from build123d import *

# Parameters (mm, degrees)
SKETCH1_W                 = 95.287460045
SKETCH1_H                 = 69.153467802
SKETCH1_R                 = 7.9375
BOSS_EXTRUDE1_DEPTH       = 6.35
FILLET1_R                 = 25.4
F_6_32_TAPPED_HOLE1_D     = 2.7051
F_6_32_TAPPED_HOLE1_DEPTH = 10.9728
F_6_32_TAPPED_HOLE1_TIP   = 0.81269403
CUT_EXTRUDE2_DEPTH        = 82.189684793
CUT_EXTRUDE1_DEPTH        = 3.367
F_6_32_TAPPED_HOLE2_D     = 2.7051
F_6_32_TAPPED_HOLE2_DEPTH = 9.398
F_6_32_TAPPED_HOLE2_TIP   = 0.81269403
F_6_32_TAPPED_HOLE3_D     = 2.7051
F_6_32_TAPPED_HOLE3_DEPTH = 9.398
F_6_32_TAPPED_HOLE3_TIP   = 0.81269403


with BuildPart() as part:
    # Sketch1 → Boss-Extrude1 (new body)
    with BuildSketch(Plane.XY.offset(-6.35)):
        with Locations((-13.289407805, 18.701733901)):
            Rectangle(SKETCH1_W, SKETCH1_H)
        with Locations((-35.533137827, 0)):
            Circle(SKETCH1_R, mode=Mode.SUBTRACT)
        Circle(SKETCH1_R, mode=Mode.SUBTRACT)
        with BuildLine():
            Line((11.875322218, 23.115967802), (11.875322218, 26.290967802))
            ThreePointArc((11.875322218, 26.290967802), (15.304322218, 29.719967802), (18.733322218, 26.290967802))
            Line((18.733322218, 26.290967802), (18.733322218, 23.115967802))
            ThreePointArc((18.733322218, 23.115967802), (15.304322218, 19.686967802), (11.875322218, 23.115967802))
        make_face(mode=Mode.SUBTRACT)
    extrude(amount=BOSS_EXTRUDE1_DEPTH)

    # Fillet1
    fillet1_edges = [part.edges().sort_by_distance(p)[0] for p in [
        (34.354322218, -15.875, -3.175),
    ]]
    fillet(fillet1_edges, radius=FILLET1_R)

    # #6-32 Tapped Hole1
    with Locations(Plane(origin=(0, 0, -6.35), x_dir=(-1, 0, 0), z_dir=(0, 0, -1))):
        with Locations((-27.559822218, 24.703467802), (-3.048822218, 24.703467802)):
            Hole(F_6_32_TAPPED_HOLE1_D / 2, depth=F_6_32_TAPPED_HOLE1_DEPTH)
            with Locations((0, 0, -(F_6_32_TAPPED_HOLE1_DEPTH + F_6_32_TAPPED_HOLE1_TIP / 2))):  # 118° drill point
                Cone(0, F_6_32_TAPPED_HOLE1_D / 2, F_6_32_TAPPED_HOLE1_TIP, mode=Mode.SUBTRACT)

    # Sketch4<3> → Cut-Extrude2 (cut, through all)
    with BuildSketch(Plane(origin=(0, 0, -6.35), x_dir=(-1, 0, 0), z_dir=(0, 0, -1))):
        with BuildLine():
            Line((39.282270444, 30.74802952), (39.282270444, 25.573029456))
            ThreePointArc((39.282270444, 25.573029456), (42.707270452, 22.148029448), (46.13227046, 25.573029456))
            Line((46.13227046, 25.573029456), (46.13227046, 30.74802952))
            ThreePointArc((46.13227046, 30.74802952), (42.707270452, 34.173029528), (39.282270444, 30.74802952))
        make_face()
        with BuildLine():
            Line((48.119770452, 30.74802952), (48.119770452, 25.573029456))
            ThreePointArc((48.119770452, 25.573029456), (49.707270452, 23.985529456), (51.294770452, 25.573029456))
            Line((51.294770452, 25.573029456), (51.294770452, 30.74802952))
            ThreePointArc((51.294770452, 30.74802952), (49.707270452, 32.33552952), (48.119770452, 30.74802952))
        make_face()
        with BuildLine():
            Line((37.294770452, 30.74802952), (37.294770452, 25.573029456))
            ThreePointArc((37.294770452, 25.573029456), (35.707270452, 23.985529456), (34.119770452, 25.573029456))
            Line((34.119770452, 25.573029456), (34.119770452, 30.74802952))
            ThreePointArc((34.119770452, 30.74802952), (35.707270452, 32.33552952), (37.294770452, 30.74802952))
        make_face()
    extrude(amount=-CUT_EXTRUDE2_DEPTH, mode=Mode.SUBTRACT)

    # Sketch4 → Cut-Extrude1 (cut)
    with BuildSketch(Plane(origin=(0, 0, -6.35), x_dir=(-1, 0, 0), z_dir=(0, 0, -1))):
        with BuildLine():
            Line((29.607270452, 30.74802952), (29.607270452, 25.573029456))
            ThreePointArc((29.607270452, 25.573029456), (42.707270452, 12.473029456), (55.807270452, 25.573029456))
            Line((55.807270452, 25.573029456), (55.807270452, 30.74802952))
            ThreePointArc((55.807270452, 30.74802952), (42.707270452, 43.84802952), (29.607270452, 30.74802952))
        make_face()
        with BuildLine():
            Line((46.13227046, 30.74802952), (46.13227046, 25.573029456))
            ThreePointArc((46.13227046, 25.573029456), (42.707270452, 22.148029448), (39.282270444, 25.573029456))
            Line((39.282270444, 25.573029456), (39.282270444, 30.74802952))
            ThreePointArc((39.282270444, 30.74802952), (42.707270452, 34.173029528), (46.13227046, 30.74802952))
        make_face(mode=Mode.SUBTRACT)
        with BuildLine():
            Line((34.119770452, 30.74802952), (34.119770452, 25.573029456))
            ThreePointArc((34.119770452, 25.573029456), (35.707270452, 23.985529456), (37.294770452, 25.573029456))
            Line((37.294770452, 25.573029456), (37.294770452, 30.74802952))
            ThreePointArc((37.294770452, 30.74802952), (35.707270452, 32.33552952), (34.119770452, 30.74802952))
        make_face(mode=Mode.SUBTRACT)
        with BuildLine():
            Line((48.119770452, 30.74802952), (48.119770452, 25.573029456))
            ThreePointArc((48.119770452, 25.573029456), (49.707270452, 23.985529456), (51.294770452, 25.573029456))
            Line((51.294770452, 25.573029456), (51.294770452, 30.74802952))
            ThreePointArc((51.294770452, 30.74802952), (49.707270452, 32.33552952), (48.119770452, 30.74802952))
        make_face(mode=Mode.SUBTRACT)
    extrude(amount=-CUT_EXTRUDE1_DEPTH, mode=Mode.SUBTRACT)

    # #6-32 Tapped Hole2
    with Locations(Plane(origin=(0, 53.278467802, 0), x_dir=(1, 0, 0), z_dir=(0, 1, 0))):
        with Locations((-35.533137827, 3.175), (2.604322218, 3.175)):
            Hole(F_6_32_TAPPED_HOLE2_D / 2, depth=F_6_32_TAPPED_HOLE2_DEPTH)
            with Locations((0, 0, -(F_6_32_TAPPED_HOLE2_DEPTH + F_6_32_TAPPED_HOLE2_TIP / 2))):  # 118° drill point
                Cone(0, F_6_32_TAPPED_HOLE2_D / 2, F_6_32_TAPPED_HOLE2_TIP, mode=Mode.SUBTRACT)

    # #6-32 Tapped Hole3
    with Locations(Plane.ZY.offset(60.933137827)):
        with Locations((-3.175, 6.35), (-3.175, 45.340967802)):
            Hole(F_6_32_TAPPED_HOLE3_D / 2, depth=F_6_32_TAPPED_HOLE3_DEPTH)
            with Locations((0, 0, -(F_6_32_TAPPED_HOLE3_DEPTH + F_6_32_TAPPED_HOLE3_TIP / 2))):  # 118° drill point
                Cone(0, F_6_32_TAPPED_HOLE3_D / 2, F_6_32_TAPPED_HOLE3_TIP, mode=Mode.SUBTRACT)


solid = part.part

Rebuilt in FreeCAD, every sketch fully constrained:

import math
import FreeCAD as App
import Part
import Sketcher

V = App.Vector
Q = App.Units.Quantity


def edges_at(feature, points):
    """Names of the edges that pass closest to the given points."""
    edges = feature.Shape.Edges
    near = lambda p: min(range(len(edges)), key=lambda i: edges[i].distToShape(Part.Vertex(*p))[0])
    return sorted({f"Edge{near(p) + 1}" for p in points})


def add_polygon(sketch, points):
    """Adds a closed chain of lines whose ends are joined by coincident constraints."""
    first, n = sketch.GeometryCount, len(points)
    for a, b in zip(points, points[1:] + points[:1]):
        sketch.addGeometry(Part.LineSegment(App.Vector(*a, 0), App.Vector(*b, 0)), False)
    for i in range(n):
        sketch.addConstraint(Sketcher.Constraint("Coincident", first + i, 2, first + (i + 1) % n, 1))

doc = App.newDocument("Part")
params = doc.addObject("Spreadsheet::Sheet", "Params")
for row, (alias, value) in enumerate([
    ("sketch1_diameter", "0.625 in"),
    ("sketch1_radius", "0.135 in"),
    ("sketch1_height", "0.125 in"),
    ("pad1_length", "0.25 in"),
    ("fillet_radius", "1 in"),
    ("hole_diameter", "0.1065 in"),
    ("hole_depth", "0.432 in"),
    ("sketch3_radius", "0.0625 in"),
    ("sketch4_radius", "0.0625 in"),
    ("pocket2_length", "3.367 mm"),
    ("hole2_diameter", "0.1065 in"),
    ("hole2_depth", "0.37 in"),
    ("hole3_diameter", "0.1065 in"),
    ("hole3_depth", "0.37 in"),
], start=1):
    params.set(f"A{row}", alias)
    params.set(f"B{row}", "=" + value)
    params.setAlias(f"B{row}", alias)

body = doc.addObject("PartDesign::Body", "Body")

sketch1 = doc.addObject("Sketcher::SketchObject", "Sketch")
body.addObject(sketch1)
sketch1.AttachmentSupport = (doc.XY_Plane, [""])
sketch1.MapMode = "FlatFace"
sketch1.AttachmentOffset = App.Placement(V(0, 0, -0.25 * 25.4), App.Rotation())
add_polygon(sketch1, [(-60.9, 53.3), (-60.9, -15.9), (34.4, -15.9), (34.4, 53.3)])
sketch1.addGeometry(Part.Circle(V(-35.5, 0, 0), V(0, 0, 1), 7.9), False)
sketch1.addGeometry(Part.Circle(V(0, 0, 0), V(0, 0, 1), 7.9), False)
sketch1.addGeometry(Part.ArcOfCircle(Part.Circle(V(15.3, 23.1, 0), V(0, 0, 1), 3.4), math.radians(180), math.radians(360)), False)
sketch1.addGeometry(Part.LineSegment(V(11.9, 23.1, 0), V(11.9, 26.3, 0)), False)
sketch1.addGeometry(Part.ArcOfCircle(Part.Circle(V(15.3, 26.3, 0), V(0, 0, 1), 3.4), math.radians(0), math.radians(180)), False)
sketch1.addGeometry(Part.LineSegment(V(18.7, 26.3, 0), V(18.7, 23.1, 0)), False)
sketch1.addConstraint([
    Sketcher.Constraint("Tangent", 6, 1, 7, 1),
    Sketcher.Constraint("Tangent", 7, 2, 8, 2),
    Sketcher.Constraint("Tangent", 8, 1, 9, 1),
    Sketcher.Constraint("Tangent", 9, 2, 6, 2),
    Sketcher.Constraint("Vertical", 0),
    Sketcher.Constraint("Horizontal", 1),
    Sketcher.Constraint("Vertical", 2),
    Sketcher.Constraint("Horizontal", 3),
    Sketcher.Constraint("Vertical", 7),
    Sketcher.Constraint("Vertical", 9),
    Sketcher.Constraint("Coincident", 5, 3, -1, 1),
    Sketcher.Constraint("Equal", 4, 5),
    Sketcher.Constraint("PointOnObject", 4, 3, -1),
    Sketcher.Constraint("Diameter", 4, Q("0.625 in")),
    Sketcher.Constraint("Radius", 6, Q("0.135 in")),
    Sketcher.Constraint("DistanceX", 0, 2, 4, 3, Q("1 in")),
    Sketcher.Constraint("DistanceY", 7, 1, 7, 2, Q("0.125 in")),
    Sketcher.Constraint("DistanceX", 6, 3, 1, 2, Q("0.75 in")),
    Sketcher.Constraint("DistanceY", 0, 2, -1, 1, Q("0.625 in")),
    Sketcher.Constraint("DistanceY", 8, 3, 2, 2, Q("1.0625 in")),
    Sketcher.Constraint("DistanceX", 1, 1, 1, 2, 95.28746),
    Sketcher.Constraint("DistanceY", 0, 2, 0, 1, 69.153468),
    Sketcher.Constraint("DistanceX", 4, 3, -1, 1, 35.533138),
])
sketch1.setExpression("Constraints[17]", "Params.sketch1_diameter")
sketch1.setExpression("Constraints[18]", "Params.sketch1_radius")
sketch1.setExpression("Constraints[20]", "Params.sketch1_height")
pad1 = doc.addObject("PartDesign::Pad", "Pad")
body.addObject(pad1)
pad1.Profile = sketch1
pad1.setExpression("Length", "Params.pad1_length")
doc.recompute()

fillet = doc.addObject("PartDesign::Fillet", "Fillet")
body.addObject(fillet)
fillet.Base = (pad1, edges_at(pad1, [(34.354, -15.875, -3.175)]))
fillet.setExpression("Radius", "Params.fillet_radius")

sketch2 = doc.addObject("Sketcher::SketchObject", "Sketch001")
body.addObject(sketch2)
sketch2.AttachmentSupport = (doc.XY_Plane, [""])
sketch2.MapMode = "FlatFace"
sketch2.AttachmentOffset = App.Placement(V(0, 0, -0.25 * 25.4), App.Rotation())
sketch2.addGeometry([
    Part.Circle(V(27.6, 24.7, 0), V(0, 0, 1), 1.4),
    Part.Circle(V(3, 24.7, 0), V(0, 0, 1), 1.4),
], False)
sketch2.addConstraint([
    Sketcher.Constraint("Equal", 0, 1),
    Sketcher.Constraint("Horizontal", 0, 3, 1, 3),
    Sketcher.Constraint("Diameter", 0, Q("0.1065 in")),
    Sketcher.Constraint("DistanceX", 1, 3, 0, 3, Q("0.965 in")),
    Sketcher.Constraint("DistanceX", -1, 1, 0, 3, 27.559822),
    Sketcher.Constraint("DistanceY", -1, 1, 0, 3, 24.703468),
])
doc.recompute()
hole = doc.addObject("PartDesign::Hole", "Hole")
body.addObject(hole)
hole.Profile = sketch2
hole.ThreadType = "None"
hole.setExpression("Diameter", "Params.hole_diameter")
hole.DepthType = "Dimension"
hole.setExpression("Depth", "Params.hole_depth")
hole.DrillPoint = "Angled"
hole.DrillPointAngle = 118
hole.Reversed = True

sketch3 = doc.addObject("Sketcher::SketchObject", "Sketch002")
body.addObject(sketch3)
sketch3.AttachmentSupport = (doc.XY_Plane, [""])
sketch3.MapMode = "FlatFace"
sketch3.AttachmentOffset = App.Placement(V(0, 0, -0.25 * 25.4), App.Rotation())
sketch3.addGeometry([
    Part.LineSegment(V(-39.3, 30.7, 0), V(-39.3, 25.6, 0)),
    Part.ArcOfCircle(Part.Circle(V(-42.7, 25.6, 0), V(0, 0, 1), 3.4), math.radians(180), math.radians(360)),
    Part.LineSegment(V(-46.1, 25.6, 0), V(-46.1, 30.7, 0)),
    Part.ArcOfCircle(Part.Circle(V(-42.7, 30.7, 0), V(0, 0, 1), 3.4), math.radians(0), math.radians(180)),
    Part.LineSegment(V(-48.1, 30.7, 0), V(-48.1, 25.6, 0)),
    Part.ArcOfCircle(Part.Circle(V(-49.7, 25.6, 0), V(0, 0, 1), 1.6), math.radians(180), math.radians(360)),
    Part.LineSegment(V(-51.3, 25.6, 0), V(-51.3, 30.7, 0)),
    Part.ArcOfCircle(Part.Circle(V(-49.7, 30.7, 0), V(0, 0, 1), 1.6), math.radians(0), math.radians(180)),
    Part.LineSegment(V(-37.3, 25.6, 0), V(-37.3, 30.7, 0)),
    Part.ArcOfCircle(Part.Circle(V(-35.7, 30.7, 0), V(0, 0, 1), 1.6), math.radians(0), math.radians(180)),
    Part.LineSegment(V(-34.1, 30.7, 0), V(-34.1, 25.6, 0)),
    Part.ArcOfCircle(Part.Circle(V(-35.7, 25.6, 0), V(0, 0, 1), 1.6), math.radians(180), math.radians(360)),
], False)
sketch3.addConstraint([
    Sketcher.Constraint("Tangent", 0, 2, 1, 2),
    Sketcher.Constraint("Tangent", 1, 1, 2, 1),
    Sketcher.Constraint("Tangent", 2, 2, 3, 2),
    Sketcher.Constraint("Tangent", 3, 1, 0, 1),
    Sketcher.Constraint("Tangent", 4, 2, 5, 2),
    Sketcher.Constraint("Tangent", 5, 1, 6, 1),
    Sketcher.Constraint("Tangent", 6, 2, 7, 2),
    Sketcher.Constraint("Tangent", 7, 1, 4, 1),
    Sketcher.Constraint("Tangent", 8, 2, 9, 2),
    Sketcher.Constraint("Tangent", 9, 1, 10, 1),
    Sketcher.Constraint("Tangent", 10, 2, 11, 2),
    Sketcher.Constraint("Tangent", 11, 1, 8, 1),
    Sketcher.Constraint("Vertical", 0),
    Sketcher.Constraint("Vertical", 2),
    Sketcher.Constraint("Vertical", 4),
    Sketcher.Constraint("Vertical", 6),
    Sketcher.Constraint("Vertical", 8),
    Sketcher.Constraint("Vertical", 10),
    Sketcher.Constraint("Equal", 7, 9),
    Sketcher.Constraint("Horizontal", 1, 3, 5, 3),
    Sketcher.Constraint("Horizontal", 3, 3, 7, 3),
    Sketcher.Constraint("Horizontal", 7, 3, 9, 3),
    Sketcher.Constraint("Horizontal", 5, 3, 11, 3),
    Sketcher.Constraint("Radius", 5, Q("0.0625 in")),
    Sketcher.Constraint("Radius", 1, 3.425),
    Sketcher.Constraint("DistanceY", 0, 2, 0, 1, 5.175),
    Sketcher.Constraint("DistanceX", 5, 3, 1, 3, 7.0),
    Sketcher.Constraint("DistanceX", 3, 3, 9, 3, 7.0),
    Sketcher.Constraint("DistanceX", 1, 3, -1, 1, 42.70727),
    Sketcher.Constraint("DistanceY", -1, 1, 1, 3, 25.573029),
])
sketch3.setExpression("Constraints[23]", "Params.sketch3_radius")
pocket1 = doc.addObject("PartDesign::Pocket", "Pocket")
body.addObject(pocket1)
pocket1.Profile = sketch3
pocket1.Type = "ThroughAll"
pocket1.Reversed = True

sketch4 = doc.addObject("Sketcher::SketchObject", "Sketch003")
body.addObject(sketch4)
sketch4.AttachmentSupport = (doc.XY_Plane, [""])
sketch4.MapMode = "FlatFace"
sketch4.AttachmentOffset = App.Placement(V(0, 0, -0.25 * 25.4), App.Rotation())
sketch4.addGeometry([
    Part.LineSegment(V(-29.6, 30.7, 0), V(-29.6, 25.6, 0)),
    Part.ArcOfCircle(Part.Circle(V(-42.7, 25.6, 0), V(0, 0, 1), 13.1), math.radians(180), math.radians(360)),
    Part.LineSegment(V(-55.8, 25.6, 0), V(-55.8, 30.7, 0)),
    Part.ArcOfCircle(Part.Circle(V(-42.7, 30.7, 0), V(0, 0, 1), 13.1), math.radians(0), math.radians(180)),
    Part.LineSegment(V(-34.1, 25.6, 0), V(-34.1, 30.7, 0)),
    Part.ArcOfCircle(Part.Circle(V(-35.7, 30.7, 0), V(0, 0, 1), 1.6), math.radians(0), math.radians(180)),
    Part.LineSegment(V(-37.3, 30.7, 0), V(-37.3, 25.6, 0)),
    Part.ArcOfCircle(Part.Circle(V(-35.7, 25.6, 0), V(0, 0, 1), 1.6), math.radians(180), math.radians(360)),
    Part.LineSegment(V(-48.1, 25.6, 0), V(-48.1, 30.7, 0)),
    Part.ArcOfCircle(Part.Circle(V(-49.7, 30.7, 0), V(0, 0, 1), 1.6), math.radians(0), math.radians(180)),
    Part.LineSegment(V(-51.3, 30.7, 0), V(-51.3, 25.6, 0)),
    Part.ArcOfCircle(Part.Circle(V(-49.7, 25.6, 0), V(0, 0, 1), 1.6), math.radians(180), math.radians(360)),
    Part.ArcOfCircle(Part.Circle(V(-42.7, 30.7, 0), V(0, 0, 1), 3.4), math.radians(0), math.radians(180)),
    Part.LineSegment(V(-46.1, 30.7, 0), V(-46.1, 25.6, 0)),
    Part.ArcOfCircle(Part.Circle(V(-42.7, 25.6, 0), V(0, 0, 1), 3.4), math.radians(180), math.radians(360)),
    Part.LineSegment(V(-39.3, 25.6, 0), V(-39.3, 30.7, 0)),
], False)
sketch4.addConstraint([
    Sketcher.Constraint("Tangent", 0, 2, 1, 2),
    Sketcher.Constraint("Tangent", 1, 1, 2, 1),
    Sketcher.Constraint("Tangent", 2, 2, 3, 2),
    Sketcher.Constraint("Tangent", 3, 1, 0, 1),
    Sketcher.Constraint("Tangent", 4, 2, 5, 1),
    Sketcher.Constraint("Tangent", 5, 2, 6, 1),
    Sketcher.Constraint("Tangent", 6, 2, 7, 1),
    Sketcher.Constraint("Tangent", 7, 2, 4, 1),
    Sketcher.Constraint("Tangent", 8, 2, 9, 1),
    Sketcher.Constraint("Tangent", 9, 2, 10, 1),
    Sketcher.Constraint("Tangent", 10, 2, 11, 1),
    Sketcher.Constraint("Tangent", 11, 2, 8, 1),
    Sketcher.Constraint("Tangent", 12, 2, 13, 1),
    Sketcher.Constraint("Tangent", 13, 2, 14, 1),
    Sketcher.Constraint("Tangent", 14, 2, 15, 1),
    Sketcher.Constraint("Tangent", 15, 2, 12, 1),
    Sketcher.Constraint("Vertical", 0),
    Sketcher.Constraint("Vertical", 2),
    Sketcher.Constraint("Vertical", 4),
    Sketcher.Constraint("Vertical", 6),
    Sketcher.Constraint("Vertical", 8),
    Sketcher.Constraint("Vertical", 10),
    Sketcher.Constraint("Vertical", 13),
    Sketcher.Constraint("Vertical", 15),
    Sketcher.Constraint("Coincident", 12, 3, 3, 3),
    Sketcher.Constraint("Equal", 7, 9),
    Sketcher.Constraint("Horizontal", 3, 3, 5, 3),
    Sketcher.Constraint("Horizontal", 1, 3, 7, 3),
    Sketcher.Constraint("Horizontal", 5, 3, 9, 3),
    Sketcher.Constraint("Horizontal", 7, 3, 11, 3),
    Sketcher.Constraint("Horizontal", 11, 3, 14, 3),
    Sketcher.Constraint("Radius", 5, Q("0.0625 in")),
    Sketcher.Constraint("Radius", 1, 13.1),
    Sketcher.Constraint("Radius", 12, 3.425),
    Sketcher.Constraint("DistanceY", 0, 2, 0, 1, 5.175),
    Sketcher.Constraint("DistanceX", 3, 3, 5, 3, 7.0),
    Sketcher.Constraint("DistanceX", 9, 3, 3, 3, 7.0),
    Sketcher.Constraint("DistanceX", 1, 3, -1, 1, 42.70727),
    Sketcher.Constraint("DistanceY", -1, 1, 1, 3, 25.573029),
])
sketch4.setExpression("Constraints[31]", "Params.sketch4_radius")
pocket2 = doc.addObject("PartDesign::Pocket", "Pocket001")
body.addObject(pocket2)
pocket2.Profile = sketch4
pocket2.setExpression("Length", "Params.pocket2_length")
pocket2.Reversed = True

sketch5 = doc.addObject("Sketcher::SketchObject", "Sketch004")
body.addObject(sketch5)
sketch5.AttachmentSupport = (doc.XZ_Plane, [""])
sketch5.MapMode = "FlatFace"
sketch5.AttachmentOffset = App.Placement(V(0, 0, -53.278468), App.Rotation())
sketch5.addGeometry([
    Part.Circle(V(-35.5, -3.2, 0), V(0, 0, 1), 1.4),
    Part.Circle(V(2.6, -3.2, 0), V(0, 0, 1), 1.4),
], False)
sketch5.addConstraint([
    Sketcher.Constraint("Equal", 0, 1),
    Sketcher.Constraint("Horizontal", 0, 3, 1, 3),
    Sketcher.Constraint("Diameter", 0, Q("0.1065 in")),
    Sketcher.Constraint("DistanceY", 0, 3, -1, 1, Q("0.125 in")),
    Sketcher.Constraint("DistanceX", 0, 3, 1, 3, 38.13746),
    Sketcher.Constraint("DistanceX", 0, 3, -1, 1, 35.533138),
])
doc.recompute()
hole2 = doc.addObject("PartDesign::Hole", "Hole001")
body.addObject(hole2)
hole2.Profile = sketch5
hole2.ThreadType = "None"
hole2.setExpression("Diameter", "Params.hole2_diameter")
hole2.DepthType = "Dimension"
hole2.setExpression("Depth", "Params.hole2_depth")
hole2.DrillPoint = "Angled"
hole2.DrillPointAngle = 118
hole2.Reversed = True

sketch6 = doc.addObject("Sketcher::SketchObject", "Sketch005")
body.addObject(sketch6)
sketch6.AttachmentSupport = (doc.YZ_Plane, [""])
sketch6.MapMode = "FlatFace"
sketch6.AttachmentOffset = App.Placement(V(0, 0, -60.933138), App.Rotation())
sketch6.addGeometry([
    Part.Circle(V(6.3, -3.2, 0), V(0, 0, 1), 1.4),
    Part.Circle(V(45.3, -3.2, 0), V(0, 0, 1), 1.4),
], False)
sketch6.addConstraint([
    Sketcher.Constraint("Equal", 0, 1),
    Sketcher.Constraint("Horizontal", 0, 3, 1, 3),
    Sketcher.Constraint("Diameter", 0, Q("0.1065 in")),
    Sketcher.Constraint("DistanceX", -1, 1, 0, 3, Q("0.25 in")),
    Sketcher.Constraint("DistanceY", 0, 3, -1, 1, Q("0.125 in")),
    Sketcher.Constraint("DistanceX", -1, 1, 1, 3, 45.340968),
])
doc.recompute()
hole3 = doc.addObject("PartDesign::Hole", "Hole002")
body.addObject(hole3)
hole3.Profile = sketch6
hole3.ThreadType = "None"
hole3.setExpression("Diameter", "Params.hole3_diameter")
hole3.DepthType = "Dimension"
hole3.setExpression("Depth", "Params.hole3_depth")
hole3.DrillPoint = "Angled"
hole3.DrillPointAngle = 118
hole3.Reversed = True

doc.recompute()
